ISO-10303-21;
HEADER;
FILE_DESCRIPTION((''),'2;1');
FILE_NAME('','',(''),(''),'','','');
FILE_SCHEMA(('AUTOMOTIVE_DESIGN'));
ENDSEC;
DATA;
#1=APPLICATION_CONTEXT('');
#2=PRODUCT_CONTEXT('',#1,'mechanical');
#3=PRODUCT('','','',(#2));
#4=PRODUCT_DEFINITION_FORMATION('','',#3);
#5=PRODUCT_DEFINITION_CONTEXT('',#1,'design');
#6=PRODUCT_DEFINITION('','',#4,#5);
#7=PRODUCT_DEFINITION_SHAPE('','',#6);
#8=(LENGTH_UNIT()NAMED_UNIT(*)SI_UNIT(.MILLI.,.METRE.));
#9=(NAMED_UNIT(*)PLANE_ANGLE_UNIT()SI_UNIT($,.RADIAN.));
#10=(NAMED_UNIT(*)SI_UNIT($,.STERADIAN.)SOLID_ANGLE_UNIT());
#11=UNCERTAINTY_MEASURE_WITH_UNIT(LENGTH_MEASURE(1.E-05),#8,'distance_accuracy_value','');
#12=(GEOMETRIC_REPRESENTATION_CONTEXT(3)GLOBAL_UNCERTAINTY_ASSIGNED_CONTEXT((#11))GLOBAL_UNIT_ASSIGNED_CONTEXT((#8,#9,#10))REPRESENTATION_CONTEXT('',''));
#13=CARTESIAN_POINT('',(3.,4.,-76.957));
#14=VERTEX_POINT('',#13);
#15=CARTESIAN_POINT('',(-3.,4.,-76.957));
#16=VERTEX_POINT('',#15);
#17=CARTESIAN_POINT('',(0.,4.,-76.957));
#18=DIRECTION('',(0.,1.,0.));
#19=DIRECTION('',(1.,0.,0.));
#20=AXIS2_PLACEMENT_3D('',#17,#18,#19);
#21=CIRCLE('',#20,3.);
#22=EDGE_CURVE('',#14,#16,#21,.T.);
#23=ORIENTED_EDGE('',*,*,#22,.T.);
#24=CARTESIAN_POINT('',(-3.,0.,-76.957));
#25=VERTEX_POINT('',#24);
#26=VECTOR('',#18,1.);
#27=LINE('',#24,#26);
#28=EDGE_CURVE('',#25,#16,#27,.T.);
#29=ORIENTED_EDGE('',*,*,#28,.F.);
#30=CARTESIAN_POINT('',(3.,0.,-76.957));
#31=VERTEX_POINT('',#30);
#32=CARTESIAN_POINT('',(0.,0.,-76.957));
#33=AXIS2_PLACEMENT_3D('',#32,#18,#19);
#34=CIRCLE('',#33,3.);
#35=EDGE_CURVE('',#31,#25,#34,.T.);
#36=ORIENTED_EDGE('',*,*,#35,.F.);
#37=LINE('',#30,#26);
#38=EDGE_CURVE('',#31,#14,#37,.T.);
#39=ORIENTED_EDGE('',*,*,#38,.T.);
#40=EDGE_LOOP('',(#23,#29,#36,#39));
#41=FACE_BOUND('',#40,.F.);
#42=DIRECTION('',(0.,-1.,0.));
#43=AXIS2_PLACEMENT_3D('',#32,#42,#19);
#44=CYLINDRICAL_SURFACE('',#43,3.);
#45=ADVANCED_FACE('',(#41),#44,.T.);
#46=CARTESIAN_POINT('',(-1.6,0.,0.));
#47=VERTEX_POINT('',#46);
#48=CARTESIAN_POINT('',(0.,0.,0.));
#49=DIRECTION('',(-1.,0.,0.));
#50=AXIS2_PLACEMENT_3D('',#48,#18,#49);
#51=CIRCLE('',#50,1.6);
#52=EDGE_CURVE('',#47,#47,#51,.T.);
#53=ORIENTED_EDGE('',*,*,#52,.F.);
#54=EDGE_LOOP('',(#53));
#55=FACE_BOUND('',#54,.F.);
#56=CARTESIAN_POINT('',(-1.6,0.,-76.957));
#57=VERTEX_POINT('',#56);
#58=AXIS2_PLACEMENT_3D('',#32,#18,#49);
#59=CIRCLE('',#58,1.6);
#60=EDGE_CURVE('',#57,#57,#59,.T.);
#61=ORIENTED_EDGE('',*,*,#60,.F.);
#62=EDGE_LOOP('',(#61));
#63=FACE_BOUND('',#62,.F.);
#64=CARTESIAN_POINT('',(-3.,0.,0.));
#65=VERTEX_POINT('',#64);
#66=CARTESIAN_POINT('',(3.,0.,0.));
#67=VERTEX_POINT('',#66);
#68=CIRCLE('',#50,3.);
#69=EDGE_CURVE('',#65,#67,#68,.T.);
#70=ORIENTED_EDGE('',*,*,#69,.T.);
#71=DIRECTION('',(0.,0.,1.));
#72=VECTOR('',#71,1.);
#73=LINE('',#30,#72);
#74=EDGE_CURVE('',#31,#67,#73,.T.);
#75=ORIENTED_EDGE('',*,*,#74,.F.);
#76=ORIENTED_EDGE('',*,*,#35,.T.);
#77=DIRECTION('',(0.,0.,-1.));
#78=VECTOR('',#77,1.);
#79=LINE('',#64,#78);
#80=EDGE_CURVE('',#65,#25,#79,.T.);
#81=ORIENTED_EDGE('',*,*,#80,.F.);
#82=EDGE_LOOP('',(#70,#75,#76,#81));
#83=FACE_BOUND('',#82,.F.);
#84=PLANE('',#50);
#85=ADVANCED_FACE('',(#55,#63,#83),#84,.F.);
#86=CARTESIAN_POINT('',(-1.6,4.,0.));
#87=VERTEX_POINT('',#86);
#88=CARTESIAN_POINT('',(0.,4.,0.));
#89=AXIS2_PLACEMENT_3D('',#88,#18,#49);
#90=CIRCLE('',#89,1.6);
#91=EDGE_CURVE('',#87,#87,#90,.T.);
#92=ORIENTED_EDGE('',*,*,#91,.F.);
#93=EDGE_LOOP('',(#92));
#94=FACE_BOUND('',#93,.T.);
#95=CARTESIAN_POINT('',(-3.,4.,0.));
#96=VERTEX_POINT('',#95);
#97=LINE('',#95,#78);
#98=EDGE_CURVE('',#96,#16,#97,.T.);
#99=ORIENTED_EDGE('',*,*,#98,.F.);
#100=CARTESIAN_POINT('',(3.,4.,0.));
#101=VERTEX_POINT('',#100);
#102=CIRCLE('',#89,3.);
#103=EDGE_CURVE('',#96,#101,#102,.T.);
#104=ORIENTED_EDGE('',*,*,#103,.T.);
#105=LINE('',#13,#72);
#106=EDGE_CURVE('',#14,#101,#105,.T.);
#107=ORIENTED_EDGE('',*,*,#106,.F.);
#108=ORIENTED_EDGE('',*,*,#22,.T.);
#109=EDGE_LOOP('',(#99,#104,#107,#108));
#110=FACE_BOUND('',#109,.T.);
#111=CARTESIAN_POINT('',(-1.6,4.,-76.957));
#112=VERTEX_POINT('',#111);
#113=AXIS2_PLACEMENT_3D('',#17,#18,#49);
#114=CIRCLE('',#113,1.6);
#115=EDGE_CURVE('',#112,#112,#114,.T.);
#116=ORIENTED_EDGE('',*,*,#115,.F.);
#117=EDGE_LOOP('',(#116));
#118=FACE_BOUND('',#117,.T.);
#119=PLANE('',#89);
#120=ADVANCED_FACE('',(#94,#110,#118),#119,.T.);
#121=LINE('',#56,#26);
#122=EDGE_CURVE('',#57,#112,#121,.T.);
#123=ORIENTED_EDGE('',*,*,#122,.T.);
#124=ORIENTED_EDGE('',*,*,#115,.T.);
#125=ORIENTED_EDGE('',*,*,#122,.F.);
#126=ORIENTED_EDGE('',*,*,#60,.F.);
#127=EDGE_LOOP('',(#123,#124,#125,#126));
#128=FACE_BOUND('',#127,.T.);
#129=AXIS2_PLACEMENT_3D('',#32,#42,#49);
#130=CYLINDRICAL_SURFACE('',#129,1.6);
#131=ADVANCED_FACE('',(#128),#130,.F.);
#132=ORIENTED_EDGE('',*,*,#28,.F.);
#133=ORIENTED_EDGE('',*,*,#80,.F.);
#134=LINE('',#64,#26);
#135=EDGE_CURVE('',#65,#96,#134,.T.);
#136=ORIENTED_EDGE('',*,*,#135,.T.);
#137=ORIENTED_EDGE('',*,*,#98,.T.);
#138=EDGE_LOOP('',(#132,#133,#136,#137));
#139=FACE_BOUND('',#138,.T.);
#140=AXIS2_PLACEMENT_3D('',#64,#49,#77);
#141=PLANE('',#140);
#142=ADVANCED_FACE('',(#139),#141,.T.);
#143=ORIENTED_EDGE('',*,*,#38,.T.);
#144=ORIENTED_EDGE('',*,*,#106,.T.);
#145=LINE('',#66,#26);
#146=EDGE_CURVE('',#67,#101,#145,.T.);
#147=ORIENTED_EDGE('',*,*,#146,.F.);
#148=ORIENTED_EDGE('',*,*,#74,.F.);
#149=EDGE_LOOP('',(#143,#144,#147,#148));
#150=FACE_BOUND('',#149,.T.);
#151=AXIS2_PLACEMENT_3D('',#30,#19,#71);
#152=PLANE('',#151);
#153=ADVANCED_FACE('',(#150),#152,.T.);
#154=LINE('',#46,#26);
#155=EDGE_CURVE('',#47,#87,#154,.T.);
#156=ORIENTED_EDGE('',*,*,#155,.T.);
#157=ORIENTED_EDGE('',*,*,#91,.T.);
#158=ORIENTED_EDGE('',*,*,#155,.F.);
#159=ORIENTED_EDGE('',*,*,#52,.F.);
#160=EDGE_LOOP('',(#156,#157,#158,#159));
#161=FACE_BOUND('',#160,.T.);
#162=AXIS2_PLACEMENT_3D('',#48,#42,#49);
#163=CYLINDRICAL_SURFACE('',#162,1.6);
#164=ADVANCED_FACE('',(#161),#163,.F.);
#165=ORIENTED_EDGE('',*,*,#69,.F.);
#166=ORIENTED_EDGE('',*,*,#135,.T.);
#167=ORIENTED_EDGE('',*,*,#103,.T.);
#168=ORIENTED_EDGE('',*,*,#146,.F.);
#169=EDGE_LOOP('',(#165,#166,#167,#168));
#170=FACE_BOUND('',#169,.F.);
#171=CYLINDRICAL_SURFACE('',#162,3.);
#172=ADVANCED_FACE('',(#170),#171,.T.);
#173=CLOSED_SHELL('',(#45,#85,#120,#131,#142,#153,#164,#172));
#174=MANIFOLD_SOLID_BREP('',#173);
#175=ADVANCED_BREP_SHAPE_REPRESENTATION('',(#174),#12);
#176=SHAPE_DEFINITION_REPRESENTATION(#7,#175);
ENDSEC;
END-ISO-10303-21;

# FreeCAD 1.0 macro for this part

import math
import FreeCAD as App
import Part
import Sketcher

V = App.Vector

doc = App.newDocument("Part")
body = doc.addObject("PartDesign::Body", "Body")

# Sketch on XZ plane
sketch1 = body.newObject("Sketcher::SketchObject", "Sketch")
sketch1.AttachmentSupport = (doc.getObject("XZ_Plane"), [""])
sketch1.MapMode = "FlatFace"
sketch1.addGeometry([
    Part.LineSegment(V(-3, -77, 0), V(-3, 0, 0)),  # 0
    Part.ArcOfCircle(Part.Circle(V(0, 0, 0), V(0, 0, 1), 3), math.radians(0), math.radians(180)),  # 1
    Part.LineSegment(V(3, 0, 0), V(3, -77, 0)),  # 2
    Part.ArcOfCircle(Part.Circle(V(0, -77, 0), V(0, 0, 1), 3), math.radians(180), math.radians(360)),  # 3
    Part.Circle(V(0, -77, 0), V(0, 0, 1), 1.6),  # 4
    Part.Circle(V(0, 0, 0), V(0, 0, 1), 1.6),  # 5
], False)
sketch1.addConstraint([
    Sketcher.Constraint("Tangent", 0, 2, 1, 2),
    Sketcher.Constraint("Tangent", 1, 1, 2, 1),
    Sketcher.Constraint("Tangent", 2, 2, 3, 2),
    Sketcher.Constraint("Tangent", 3, 1, 0, 1),
    Sketcher.Constraint("Vertical", 0),
    Sketcher.Constraint("Vertical", 2),
    Sketcher.Constraint("Coincident", 1, 3, -1, 1),
    Sketcher.Constraint("Coincident", 5, 3, -1, 1),
    Sketcher.Constraint("Coincident", 4, 3, 3, 3),
    Sketcher.Constraint("Equal", 4, 5),
    Sketcher.Constraint("Radius", 1, 3.0),
    Sketcher.Constraint("Diameter", 4, 3.2),
    Sketcher.Constraint("DistanceY", 0, 1, 0, 2, 76.957),
])
pad1 = body.newObject("PartDesign::Pad", "Pad")
pad1.Profile = sketch1
pad1.Length = 4
pad1.Reversed = True

doc.recompute()
